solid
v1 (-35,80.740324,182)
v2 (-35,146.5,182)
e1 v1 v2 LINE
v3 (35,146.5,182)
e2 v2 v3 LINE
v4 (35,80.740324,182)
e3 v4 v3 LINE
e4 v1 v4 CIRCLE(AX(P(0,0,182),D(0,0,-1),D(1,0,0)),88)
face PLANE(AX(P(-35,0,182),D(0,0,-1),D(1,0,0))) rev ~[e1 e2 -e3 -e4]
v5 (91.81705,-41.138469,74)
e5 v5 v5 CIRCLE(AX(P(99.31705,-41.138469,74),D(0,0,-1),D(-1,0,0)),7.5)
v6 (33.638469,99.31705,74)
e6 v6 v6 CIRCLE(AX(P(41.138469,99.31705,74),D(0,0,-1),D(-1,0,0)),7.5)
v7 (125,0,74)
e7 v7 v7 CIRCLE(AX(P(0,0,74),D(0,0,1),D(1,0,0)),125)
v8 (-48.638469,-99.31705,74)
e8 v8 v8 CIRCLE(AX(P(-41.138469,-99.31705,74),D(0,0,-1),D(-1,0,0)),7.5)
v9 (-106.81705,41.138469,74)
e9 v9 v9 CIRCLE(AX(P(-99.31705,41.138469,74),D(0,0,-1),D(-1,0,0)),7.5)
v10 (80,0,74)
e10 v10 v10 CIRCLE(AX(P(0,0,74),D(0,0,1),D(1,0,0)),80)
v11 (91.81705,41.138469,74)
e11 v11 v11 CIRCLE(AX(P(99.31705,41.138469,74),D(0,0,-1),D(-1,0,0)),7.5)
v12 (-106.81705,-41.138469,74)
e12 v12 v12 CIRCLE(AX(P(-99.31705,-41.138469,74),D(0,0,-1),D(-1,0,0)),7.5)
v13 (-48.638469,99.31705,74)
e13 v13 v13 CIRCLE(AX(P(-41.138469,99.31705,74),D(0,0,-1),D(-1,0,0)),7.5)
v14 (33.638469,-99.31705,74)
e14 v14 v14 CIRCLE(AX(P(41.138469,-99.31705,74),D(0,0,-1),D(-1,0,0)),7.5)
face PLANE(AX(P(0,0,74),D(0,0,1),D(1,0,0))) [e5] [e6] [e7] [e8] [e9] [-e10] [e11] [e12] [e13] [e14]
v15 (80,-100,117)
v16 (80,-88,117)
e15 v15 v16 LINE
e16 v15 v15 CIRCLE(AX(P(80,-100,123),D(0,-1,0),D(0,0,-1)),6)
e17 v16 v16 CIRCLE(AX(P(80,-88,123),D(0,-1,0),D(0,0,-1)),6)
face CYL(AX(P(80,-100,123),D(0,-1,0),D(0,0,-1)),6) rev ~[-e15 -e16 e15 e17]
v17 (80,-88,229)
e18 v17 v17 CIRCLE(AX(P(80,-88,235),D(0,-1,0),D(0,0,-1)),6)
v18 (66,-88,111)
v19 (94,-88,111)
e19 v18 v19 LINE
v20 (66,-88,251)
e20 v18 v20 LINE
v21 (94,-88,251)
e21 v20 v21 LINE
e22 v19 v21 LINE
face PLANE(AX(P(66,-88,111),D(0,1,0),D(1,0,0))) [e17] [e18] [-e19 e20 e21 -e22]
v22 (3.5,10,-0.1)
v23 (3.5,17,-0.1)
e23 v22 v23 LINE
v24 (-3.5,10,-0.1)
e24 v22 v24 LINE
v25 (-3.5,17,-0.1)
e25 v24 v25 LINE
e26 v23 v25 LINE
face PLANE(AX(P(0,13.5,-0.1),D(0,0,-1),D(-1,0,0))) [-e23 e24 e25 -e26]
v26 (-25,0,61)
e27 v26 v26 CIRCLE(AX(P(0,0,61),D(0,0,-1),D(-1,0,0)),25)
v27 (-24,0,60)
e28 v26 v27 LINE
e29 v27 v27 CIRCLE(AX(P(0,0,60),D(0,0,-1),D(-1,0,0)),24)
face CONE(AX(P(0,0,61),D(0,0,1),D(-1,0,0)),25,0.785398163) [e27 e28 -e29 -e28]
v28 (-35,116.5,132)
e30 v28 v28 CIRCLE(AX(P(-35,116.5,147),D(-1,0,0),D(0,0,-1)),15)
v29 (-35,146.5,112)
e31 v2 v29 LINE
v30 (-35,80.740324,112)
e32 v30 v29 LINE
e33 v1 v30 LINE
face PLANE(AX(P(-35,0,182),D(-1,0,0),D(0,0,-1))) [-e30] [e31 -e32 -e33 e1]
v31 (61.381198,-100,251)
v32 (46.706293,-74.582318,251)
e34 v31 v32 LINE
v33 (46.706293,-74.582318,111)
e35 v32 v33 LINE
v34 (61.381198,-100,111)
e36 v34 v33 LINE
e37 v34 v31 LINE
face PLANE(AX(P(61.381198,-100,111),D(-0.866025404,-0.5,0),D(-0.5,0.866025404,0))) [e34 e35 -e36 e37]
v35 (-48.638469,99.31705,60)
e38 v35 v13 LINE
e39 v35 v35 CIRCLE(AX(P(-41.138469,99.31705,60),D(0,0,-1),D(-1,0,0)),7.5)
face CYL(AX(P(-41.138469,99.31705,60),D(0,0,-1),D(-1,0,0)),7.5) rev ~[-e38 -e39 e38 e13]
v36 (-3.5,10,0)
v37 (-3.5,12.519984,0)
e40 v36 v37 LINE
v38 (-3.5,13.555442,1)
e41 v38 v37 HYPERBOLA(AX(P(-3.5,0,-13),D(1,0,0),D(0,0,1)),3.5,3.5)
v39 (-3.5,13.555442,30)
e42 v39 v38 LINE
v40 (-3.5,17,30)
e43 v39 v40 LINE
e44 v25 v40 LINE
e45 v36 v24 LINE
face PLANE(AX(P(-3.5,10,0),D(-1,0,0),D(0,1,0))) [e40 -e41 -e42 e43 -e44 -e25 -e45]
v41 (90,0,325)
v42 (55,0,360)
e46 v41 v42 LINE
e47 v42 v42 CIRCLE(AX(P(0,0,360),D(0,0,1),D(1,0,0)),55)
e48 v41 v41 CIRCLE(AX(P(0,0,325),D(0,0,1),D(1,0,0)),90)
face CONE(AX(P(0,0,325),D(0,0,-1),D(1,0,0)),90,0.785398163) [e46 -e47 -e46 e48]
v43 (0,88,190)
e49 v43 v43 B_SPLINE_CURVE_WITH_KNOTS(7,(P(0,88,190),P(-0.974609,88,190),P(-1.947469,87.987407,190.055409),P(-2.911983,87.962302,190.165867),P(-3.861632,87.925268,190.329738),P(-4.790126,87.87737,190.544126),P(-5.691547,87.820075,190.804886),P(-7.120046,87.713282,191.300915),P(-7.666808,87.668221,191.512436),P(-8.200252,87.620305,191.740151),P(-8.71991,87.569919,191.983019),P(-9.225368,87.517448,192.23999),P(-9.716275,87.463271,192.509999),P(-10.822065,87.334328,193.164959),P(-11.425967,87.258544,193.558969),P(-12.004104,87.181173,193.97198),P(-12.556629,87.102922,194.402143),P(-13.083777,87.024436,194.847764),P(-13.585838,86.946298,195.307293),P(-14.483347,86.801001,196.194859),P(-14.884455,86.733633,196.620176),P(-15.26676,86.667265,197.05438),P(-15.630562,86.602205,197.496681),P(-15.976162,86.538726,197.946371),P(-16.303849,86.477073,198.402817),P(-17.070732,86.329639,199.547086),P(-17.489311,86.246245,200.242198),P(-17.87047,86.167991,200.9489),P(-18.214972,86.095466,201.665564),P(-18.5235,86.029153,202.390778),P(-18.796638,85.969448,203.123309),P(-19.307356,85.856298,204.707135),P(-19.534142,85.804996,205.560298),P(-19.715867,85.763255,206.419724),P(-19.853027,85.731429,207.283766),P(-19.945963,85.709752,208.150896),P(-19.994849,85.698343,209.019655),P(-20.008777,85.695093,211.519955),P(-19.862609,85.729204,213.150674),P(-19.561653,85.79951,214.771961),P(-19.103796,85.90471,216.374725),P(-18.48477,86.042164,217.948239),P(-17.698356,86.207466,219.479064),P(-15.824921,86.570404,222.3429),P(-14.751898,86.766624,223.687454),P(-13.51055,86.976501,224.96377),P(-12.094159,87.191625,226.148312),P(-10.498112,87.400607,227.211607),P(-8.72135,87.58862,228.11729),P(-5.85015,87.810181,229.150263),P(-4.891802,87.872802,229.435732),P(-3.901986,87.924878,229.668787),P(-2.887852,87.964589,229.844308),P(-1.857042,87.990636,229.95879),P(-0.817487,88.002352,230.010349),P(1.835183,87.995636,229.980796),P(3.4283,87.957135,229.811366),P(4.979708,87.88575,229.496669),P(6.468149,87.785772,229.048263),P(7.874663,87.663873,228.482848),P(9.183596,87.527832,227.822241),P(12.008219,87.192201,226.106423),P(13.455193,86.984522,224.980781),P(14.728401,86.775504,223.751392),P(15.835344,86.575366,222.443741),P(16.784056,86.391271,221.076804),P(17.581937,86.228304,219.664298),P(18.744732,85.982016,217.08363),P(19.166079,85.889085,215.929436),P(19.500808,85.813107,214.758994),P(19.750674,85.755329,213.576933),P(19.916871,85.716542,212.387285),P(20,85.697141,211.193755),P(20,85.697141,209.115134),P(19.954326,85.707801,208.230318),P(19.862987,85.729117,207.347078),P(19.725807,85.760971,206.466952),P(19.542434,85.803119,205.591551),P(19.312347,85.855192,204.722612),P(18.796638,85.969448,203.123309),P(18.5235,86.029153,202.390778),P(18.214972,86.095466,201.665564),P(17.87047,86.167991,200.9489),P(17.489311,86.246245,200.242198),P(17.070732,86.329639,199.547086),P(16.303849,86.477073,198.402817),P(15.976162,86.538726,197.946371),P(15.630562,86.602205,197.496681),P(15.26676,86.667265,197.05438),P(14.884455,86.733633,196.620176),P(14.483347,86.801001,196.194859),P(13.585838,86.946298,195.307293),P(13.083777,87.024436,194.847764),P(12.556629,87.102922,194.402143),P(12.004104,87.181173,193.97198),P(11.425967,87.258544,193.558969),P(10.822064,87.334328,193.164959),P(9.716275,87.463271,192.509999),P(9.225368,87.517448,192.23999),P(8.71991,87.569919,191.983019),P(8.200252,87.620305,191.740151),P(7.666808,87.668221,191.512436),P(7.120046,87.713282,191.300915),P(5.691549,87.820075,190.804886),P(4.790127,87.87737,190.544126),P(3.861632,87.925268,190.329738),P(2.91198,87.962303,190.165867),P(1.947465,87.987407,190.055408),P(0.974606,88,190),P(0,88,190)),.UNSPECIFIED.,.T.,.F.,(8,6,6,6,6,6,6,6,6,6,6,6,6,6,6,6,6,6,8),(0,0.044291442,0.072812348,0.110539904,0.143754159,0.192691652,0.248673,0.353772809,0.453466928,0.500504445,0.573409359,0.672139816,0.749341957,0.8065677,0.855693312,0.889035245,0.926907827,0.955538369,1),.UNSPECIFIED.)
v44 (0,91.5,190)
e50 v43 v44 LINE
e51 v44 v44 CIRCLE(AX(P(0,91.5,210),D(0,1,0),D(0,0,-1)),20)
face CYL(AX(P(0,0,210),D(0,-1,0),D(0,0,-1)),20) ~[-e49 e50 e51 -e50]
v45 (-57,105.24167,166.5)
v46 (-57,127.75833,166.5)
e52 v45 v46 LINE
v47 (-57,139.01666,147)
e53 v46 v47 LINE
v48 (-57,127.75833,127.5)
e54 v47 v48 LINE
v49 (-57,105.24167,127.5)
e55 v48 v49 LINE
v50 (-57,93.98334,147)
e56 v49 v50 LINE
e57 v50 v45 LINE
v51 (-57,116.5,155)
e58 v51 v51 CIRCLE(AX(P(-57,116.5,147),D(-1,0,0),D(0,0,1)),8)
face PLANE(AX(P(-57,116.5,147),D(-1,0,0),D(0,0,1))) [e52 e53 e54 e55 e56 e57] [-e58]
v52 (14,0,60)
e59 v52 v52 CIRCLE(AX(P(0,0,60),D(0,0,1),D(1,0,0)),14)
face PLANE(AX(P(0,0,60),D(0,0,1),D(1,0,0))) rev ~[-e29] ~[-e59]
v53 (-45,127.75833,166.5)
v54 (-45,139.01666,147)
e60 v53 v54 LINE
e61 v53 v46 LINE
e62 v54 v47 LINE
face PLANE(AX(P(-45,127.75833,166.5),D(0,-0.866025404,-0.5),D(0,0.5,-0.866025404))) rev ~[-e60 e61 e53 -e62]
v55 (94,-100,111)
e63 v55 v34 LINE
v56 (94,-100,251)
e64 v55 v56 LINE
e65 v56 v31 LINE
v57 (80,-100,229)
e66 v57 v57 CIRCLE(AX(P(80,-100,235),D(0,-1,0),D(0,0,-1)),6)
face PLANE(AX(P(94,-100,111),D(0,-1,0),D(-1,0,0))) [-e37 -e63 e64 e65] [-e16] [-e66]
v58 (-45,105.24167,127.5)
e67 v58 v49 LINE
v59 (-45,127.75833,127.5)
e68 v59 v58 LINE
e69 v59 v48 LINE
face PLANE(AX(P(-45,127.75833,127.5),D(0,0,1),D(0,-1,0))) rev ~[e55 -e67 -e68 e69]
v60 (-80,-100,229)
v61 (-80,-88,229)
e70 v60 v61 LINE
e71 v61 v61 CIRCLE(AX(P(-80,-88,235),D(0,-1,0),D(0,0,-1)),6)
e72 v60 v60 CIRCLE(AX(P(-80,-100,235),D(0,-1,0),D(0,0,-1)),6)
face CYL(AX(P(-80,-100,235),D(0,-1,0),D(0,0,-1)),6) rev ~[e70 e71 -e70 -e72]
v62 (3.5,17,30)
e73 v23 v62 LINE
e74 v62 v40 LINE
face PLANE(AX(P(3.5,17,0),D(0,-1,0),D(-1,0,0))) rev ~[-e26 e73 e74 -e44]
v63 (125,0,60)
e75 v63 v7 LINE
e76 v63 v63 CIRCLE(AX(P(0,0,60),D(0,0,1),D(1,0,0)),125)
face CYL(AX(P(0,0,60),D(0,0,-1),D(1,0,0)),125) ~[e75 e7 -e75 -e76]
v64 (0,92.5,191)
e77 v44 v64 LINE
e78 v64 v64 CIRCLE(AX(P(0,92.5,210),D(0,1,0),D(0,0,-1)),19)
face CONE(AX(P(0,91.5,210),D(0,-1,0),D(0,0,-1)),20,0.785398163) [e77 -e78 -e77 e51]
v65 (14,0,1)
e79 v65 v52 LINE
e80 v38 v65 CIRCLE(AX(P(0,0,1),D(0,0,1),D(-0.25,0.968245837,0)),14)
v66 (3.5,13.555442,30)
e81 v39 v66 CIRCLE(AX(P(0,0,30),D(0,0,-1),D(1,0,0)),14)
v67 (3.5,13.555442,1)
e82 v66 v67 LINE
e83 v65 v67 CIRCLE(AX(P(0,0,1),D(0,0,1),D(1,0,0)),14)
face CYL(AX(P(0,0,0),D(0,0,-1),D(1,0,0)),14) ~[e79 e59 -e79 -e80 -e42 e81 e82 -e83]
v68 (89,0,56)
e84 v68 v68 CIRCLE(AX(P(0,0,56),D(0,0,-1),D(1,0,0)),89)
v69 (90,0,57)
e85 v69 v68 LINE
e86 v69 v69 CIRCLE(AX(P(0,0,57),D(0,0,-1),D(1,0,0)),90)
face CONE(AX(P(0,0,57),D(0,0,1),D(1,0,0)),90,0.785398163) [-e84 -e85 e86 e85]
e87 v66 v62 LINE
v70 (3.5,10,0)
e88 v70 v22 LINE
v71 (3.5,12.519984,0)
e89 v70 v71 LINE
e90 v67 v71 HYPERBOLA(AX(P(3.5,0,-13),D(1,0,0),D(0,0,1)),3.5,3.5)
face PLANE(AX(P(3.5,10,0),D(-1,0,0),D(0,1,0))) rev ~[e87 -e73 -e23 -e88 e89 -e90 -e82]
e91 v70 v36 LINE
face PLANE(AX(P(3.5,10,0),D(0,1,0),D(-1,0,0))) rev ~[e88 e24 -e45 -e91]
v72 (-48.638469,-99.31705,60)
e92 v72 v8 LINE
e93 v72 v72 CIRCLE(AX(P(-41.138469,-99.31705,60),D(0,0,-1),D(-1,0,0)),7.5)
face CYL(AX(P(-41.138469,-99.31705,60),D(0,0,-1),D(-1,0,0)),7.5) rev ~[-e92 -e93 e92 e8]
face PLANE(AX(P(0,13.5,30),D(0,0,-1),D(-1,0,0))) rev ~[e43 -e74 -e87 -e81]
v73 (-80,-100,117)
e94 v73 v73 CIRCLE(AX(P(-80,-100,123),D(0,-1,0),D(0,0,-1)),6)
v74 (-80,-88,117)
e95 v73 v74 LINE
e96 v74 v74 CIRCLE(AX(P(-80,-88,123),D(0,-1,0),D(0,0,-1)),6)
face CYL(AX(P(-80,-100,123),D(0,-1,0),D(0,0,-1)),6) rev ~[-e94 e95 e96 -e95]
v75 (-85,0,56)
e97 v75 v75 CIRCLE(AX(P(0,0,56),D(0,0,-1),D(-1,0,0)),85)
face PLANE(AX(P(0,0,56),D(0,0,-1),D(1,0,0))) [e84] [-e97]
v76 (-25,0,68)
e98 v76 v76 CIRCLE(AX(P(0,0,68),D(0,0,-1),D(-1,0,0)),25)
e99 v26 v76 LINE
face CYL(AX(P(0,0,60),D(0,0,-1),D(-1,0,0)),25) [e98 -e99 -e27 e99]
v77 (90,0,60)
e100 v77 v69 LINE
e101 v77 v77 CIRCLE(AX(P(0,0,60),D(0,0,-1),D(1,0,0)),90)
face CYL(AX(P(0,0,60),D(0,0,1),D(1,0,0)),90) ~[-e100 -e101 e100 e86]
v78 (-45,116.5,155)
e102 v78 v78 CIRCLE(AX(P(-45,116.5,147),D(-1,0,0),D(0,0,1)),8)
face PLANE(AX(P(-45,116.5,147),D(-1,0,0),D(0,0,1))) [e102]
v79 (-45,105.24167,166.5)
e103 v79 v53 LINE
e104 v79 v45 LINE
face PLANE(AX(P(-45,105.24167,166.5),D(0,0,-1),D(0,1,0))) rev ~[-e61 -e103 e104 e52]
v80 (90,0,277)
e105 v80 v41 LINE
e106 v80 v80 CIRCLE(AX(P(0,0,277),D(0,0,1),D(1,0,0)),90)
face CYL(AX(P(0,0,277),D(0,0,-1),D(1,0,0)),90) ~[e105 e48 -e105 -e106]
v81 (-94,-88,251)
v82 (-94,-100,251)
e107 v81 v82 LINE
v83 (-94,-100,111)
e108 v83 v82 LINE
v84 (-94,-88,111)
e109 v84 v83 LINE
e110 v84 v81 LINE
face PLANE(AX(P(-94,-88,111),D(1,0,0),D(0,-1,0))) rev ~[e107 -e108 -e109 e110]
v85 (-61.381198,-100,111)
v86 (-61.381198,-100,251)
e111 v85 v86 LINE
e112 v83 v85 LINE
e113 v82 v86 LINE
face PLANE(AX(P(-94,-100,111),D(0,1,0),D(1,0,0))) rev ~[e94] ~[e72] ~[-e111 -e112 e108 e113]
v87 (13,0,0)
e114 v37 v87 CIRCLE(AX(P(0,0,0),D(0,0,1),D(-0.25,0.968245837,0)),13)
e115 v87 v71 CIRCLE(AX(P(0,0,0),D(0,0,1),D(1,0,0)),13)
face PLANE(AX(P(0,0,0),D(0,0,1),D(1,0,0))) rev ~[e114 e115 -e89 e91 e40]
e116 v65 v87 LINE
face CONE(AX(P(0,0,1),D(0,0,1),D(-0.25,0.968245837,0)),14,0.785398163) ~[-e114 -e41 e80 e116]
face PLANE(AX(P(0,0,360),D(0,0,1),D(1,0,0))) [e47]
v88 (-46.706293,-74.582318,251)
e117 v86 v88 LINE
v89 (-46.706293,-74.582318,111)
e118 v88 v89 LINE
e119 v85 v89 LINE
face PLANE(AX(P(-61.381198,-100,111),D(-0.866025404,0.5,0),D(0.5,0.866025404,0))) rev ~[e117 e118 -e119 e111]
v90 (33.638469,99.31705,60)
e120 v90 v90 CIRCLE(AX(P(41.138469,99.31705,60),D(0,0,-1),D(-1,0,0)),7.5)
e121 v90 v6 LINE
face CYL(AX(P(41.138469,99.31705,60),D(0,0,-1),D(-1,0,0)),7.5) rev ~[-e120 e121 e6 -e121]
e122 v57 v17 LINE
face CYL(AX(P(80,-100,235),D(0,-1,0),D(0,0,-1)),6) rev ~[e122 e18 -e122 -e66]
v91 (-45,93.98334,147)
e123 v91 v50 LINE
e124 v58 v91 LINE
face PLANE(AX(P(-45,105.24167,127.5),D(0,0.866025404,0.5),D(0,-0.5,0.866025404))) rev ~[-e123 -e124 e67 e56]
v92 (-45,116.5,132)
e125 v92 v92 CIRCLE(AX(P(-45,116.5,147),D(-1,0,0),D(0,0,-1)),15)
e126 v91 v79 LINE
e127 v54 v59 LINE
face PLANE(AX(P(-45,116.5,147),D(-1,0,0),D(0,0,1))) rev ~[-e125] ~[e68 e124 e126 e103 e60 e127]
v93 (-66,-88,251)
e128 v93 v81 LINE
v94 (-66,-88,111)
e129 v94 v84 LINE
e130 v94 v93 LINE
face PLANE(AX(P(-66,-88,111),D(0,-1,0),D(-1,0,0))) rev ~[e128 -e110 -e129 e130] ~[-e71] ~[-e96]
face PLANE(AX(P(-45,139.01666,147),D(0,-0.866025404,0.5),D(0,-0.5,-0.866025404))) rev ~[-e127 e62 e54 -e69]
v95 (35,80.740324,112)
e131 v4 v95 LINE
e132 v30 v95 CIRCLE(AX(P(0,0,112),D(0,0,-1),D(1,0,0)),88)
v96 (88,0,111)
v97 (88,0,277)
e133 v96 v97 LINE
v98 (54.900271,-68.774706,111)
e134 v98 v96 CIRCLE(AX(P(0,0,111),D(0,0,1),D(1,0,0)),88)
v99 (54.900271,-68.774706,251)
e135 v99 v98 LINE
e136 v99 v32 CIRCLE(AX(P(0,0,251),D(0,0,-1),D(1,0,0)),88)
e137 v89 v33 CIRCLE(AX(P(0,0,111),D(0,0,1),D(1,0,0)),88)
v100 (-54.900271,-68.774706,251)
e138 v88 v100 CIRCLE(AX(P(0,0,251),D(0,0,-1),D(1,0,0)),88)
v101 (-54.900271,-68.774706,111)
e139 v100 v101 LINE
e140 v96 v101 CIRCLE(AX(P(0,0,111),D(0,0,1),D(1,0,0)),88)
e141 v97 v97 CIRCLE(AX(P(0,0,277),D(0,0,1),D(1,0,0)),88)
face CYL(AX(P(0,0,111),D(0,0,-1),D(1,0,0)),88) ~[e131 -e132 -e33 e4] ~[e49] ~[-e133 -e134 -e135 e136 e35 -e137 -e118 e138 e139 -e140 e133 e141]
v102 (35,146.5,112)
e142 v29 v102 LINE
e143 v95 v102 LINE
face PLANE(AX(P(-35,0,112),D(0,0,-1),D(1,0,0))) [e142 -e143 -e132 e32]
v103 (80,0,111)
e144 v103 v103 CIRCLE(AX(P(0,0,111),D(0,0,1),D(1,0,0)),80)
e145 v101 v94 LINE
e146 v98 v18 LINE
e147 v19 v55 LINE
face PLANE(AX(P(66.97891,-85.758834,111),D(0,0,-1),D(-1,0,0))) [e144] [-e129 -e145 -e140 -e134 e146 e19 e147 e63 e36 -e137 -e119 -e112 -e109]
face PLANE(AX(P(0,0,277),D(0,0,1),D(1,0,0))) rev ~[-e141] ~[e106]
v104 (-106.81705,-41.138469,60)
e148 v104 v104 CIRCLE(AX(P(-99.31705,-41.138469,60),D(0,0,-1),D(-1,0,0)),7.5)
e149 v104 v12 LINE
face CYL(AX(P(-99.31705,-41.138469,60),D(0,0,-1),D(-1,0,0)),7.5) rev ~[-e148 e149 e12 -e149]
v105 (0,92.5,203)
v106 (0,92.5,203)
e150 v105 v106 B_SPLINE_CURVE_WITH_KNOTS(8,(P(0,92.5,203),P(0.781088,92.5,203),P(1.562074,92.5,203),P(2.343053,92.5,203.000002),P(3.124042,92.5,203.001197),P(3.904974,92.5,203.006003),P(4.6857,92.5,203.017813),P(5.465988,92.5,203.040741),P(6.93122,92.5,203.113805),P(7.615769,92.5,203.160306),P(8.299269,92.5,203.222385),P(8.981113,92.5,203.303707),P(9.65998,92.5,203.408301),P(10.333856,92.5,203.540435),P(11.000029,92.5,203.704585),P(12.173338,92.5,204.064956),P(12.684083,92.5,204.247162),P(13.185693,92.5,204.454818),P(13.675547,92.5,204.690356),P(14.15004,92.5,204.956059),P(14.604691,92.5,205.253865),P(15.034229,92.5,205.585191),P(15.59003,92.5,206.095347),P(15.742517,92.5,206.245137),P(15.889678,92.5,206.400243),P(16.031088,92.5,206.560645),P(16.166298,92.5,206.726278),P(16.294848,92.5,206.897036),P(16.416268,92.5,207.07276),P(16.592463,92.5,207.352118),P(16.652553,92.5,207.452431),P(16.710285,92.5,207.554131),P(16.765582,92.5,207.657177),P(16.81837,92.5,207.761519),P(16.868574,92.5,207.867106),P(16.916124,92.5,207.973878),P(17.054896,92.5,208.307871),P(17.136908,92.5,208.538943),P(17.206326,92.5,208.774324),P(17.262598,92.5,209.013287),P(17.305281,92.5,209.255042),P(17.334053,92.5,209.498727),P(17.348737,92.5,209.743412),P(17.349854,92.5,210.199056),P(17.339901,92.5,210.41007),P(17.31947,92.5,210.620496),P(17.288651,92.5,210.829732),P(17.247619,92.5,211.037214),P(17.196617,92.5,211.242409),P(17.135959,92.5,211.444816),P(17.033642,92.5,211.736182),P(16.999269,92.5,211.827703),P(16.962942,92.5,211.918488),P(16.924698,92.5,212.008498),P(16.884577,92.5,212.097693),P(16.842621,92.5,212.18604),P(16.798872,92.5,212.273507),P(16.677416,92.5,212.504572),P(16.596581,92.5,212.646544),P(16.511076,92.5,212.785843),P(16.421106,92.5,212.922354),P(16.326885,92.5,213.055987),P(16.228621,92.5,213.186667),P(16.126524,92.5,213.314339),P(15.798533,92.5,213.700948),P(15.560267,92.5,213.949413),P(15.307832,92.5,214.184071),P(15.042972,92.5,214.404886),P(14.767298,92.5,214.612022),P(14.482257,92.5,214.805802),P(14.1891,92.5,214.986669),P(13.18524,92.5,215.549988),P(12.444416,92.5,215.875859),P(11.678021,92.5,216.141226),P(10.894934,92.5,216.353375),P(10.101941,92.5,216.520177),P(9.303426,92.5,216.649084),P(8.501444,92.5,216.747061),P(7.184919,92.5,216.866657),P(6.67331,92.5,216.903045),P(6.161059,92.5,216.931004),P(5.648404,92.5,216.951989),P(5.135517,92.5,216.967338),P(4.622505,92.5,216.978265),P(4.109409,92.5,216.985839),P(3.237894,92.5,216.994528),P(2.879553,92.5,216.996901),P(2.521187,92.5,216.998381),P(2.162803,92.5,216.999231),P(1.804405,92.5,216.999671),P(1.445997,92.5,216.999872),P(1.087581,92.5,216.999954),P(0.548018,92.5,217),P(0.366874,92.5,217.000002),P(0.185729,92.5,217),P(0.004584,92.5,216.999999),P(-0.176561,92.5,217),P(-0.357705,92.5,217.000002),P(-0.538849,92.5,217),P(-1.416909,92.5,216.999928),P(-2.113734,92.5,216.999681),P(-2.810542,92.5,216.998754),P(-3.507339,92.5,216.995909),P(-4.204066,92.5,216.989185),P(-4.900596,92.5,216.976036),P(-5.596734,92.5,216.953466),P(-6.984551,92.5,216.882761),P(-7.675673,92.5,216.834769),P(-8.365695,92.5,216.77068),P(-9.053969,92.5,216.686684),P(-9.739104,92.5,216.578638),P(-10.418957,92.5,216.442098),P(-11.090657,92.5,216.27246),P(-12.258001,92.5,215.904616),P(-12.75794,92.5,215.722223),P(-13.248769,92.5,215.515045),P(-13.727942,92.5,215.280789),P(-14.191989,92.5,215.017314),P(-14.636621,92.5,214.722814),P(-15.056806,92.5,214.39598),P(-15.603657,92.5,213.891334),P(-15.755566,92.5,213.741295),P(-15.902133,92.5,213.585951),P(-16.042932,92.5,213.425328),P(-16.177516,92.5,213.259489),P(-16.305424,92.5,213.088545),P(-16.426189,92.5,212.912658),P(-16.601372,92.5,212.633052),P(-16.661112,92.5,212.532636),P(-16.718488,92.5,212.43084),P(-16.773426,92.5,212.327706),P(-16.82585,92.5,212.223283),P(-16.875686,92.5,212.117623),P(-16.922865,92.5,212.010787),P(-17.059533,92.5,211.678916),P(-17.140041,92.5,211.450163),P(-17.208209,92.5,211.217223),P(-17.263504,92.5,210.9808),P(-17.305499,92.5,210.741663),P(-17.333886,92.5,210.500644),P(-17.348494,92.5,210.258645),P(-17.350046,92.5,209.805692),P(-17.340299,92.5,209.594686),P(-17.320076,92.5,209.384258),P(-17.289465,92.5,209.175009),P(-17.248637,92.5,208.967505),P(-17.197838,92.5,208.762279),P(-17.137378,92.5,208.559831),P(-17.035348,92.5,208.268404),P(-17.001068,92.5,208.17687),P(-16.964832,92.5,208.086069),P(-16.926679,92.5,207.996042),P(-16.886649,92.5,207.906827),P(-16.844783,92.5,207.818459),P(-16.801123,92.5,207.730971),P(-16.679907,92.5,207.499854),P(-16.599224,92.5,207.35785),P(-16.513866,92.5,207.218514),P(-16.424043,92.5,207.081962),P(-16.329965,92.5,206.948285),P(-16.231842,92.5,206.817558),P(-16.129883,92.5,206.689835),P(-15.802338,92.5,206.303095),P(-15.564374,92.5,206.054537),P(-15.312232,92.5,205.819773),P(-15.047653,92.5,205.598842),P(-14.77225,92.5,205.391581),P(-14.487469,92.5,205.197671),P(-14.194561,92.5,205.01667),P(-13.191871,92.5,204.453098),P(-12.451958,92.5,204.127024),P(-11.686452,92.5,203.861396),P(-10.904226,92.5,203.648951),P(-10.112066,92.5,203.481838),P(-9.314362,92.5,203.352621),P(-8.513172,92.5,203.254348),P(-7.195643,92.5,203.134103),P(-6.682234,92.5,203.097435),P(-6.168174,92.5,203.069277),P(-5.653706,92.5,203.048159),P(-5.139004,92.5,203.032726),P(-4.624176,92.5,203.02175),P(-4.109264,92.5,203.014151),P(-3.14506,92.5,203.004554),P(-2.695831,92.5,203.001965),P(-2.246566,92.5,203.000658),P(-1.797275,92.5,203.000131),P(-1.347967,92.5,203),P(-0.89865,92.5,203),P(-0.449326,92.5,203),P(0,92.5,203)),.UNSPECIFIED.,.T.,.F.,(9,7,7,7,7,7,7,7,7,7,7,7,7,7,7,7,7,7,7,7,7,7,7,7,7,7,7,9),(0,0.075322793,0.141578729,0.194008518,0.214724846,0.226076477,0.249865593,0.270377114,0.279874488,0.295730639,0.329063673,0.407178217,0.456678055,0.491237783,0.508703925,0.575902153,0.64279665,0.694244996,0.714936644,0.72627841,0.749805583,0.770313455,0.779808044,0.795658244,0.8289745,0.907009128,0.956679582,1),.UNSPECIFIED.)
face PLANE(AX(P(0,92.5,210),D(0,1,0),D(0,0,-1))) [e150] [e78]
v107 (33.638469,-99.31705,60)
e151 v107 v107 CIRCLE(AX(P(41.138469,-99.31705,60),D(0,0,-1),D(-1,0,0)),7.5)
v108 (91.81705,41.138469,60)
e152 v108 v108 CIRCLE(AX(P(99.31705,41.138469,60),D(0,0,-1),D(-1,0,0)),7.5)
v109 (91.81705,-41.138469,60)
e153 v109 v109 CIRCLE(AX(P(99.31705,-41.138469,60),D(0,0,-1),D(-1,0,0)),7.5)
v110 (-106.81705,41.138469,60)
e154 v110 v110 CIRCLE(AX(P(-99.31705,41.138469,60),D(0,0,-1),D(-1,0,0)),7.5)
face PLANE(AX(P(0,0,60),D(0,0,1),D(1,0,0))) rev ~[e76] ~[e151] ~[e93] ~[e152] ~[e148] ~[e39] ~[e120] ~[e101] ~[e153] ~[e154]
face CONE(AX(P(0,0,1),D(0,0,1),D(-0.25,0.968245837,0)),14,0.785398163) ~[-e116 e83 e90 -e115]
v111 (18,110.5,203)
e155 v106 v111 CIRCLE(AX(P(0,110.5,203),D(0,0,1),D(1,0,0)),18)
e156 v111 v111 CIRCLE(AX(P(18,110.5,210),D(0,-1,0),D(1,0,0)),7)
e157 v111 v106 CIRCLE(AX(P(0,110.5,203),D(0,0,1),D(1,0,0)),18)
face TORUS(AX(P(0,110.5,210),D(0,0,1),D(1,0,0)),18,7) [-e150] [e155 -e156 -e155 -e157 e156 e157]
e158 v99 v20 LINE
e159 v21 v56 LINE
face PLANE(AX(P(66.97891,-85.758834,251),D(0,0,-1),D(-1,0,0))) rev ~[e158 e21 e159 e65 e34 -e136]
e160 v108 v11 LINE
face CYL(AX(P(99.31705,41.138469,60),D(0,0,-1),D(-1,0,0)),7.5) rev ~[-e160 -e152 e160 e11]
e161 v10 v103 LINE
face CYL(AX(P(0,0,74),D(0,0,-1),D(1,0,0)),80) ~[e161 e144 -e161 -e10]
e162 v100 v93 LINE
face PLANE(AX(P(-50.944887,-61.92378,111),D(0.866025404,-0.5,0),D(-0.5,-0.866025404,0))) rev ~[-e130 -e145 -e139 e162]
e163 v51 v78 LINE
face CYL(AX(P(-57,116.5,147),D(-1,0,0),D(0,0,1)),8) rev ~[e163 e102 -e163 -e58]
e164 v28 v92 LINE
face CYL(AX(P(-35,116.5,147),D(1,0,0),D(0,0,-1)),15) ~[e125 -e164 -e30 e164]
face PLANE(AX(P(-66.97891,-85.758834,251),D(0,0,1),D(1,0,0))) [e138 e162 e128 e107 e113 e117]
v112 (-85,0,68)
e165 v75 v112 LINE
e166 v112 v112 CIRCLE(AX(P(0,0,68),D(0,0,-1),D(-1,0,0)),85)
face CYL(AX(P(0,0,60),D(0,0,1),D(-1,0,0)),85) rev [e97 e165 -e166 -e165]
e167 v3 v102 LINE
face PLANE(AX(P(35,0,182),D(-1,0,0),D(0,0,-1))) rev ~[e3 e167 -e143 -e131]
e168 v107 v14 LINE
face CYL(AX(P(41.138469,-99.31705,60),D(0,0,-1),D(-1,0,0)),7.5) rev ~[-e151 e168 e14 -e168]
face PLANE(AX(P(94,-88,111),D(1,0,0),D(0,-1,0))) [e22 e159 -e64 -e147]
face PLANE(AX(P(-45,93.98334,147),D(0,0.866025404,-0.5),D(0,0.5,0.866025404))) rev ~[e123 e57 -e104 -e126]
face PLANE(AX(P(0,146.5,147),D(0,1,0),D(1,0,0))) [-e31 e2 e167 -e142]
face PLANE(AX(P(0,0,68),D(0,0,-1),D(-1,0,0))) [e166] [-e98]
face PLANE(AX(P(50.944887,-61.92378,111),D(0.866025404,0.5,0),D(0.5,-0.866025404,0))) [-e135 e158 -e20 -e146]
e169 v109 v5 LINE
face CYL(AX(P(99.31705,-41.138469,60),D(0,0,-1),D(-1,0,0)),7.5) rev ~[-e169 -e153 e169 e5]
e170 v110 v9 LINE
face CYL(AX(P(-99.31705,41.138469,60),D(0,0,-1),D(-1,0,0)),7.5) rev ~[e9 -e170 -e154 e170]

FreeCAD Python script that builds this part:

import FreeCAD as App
import Part
import Sketcher
Q = App.Units.Quantity


def edges_at(feature, points):
    """Names of the edges that pass closest to the given points."""
    edges = feature.Shape.Edges
    near = lambda p: min(range(len(edges)), key=lambda i: edges[i].distToShape(Part.Vertex(*p))[0])
    return sorted({f"Edge{near(p) + 1}" for p in points})

doc = App.newDocument("Part")
body = doc.addObject("PartDesign::Body", "Body")

# Sketch on XY plane
sketch1 = body.newObject("Sketcher::SketchObject", "Sketch")
sketch1.AttachmentSupport = (doc.getObject("XY_Plane"), [""])
sketch1.MapMode = "FlatFace"
sketch1.addGeometry(Part.Circle(App.Vector(0, 0, 0), App.Vector(0, 0, 1), 14), False)
sketch1.addConstraint(Sketcher.Constraint("Coincident", 0, 3, -1, 1))
sketch1.addConstraint(Sketcher.Constraint("Diameter", 0, Q("28 mm")))
pad1 = body.newObject("PartDesign::Pad", "Pad")
pad1.Profile = sketch1
pad1.Length = 60

# Sketch on XY plane
sketch2 = body.newObject("Sketcher::SketchObject", "Sketch001")
sketch2.AttachmentSupport = (doc.getObject("XY_Plane"), [""])
sketch2.MapMode = "FlatFace"
sketch2.addGeometry(Part.LineSegment(App.Vector(4, 17, 0), App.Vector(4, 10, 0)), False)
sketch2.addGeometry(Part.LineSegment(App.Vector(4, 10, 0), App.Vector(-4, 10, 0)), False)
sketch2.addGeometry(Part.LineSegment(App.Vector(-4, 10, 0), App.Vector(-4, 17, 0)), False)
sketch2.addGeometry(Part.LineSegment(App.Vector(-4, 17, 0), App.Vector(4, 17, 0)), False)
sketch2.addConstraint(Sketcher.Constraint("Coincident", 0, 2, 1, 1))
sketch2.addConstraint(Sketcher.Constraint("Coincident", 1, 2, 2, 1))
sketch2.addConstraint(Sketcher.Constraint("Coincident", 2, 2, 3, 1))
sketch2.addConstraint(Sketcher.Constraint("Coincident", 3, 2, 0, 1))
sketch2.addConstraint(Sketcher.Constraint("Vertical", 0))
sketch2.addConstraint(Sketcher.Constraint("Horizontal", 1))
sketch2.addConstraint(Sketcher.Constraint("Vertical", 2))
sketch2.addConstraint(Sketcher.Constraint("Horizontal", 3))
sketch2.addConstraint(Sketcher.Constraint("Equal", 3, 0))
sketch2.addConstraint(Sketcher.Constraint("DistanceX", 1, 2, 1, 1, Q("7 mm")))
sketch2.addConstraint(Sketcher.Constraint("DistanceY", -1, 1, 0, 2, Q("10 mm")))
sketch2.addConstraint(Sketcher.Constraint("DistanceX", -1, 1, 0, 2, Q("3.5 mm")))
pad2 = body.newObject("PartDesign::Pad", "Pad001")
pad2.Profile = sketch2
pad2.Type = "TwoLengths"
pad2.Length = 0.1
pad2.Length2 = 30
pad2.Reversed = True

# Sketch on XY plane
sketch3 = body.newObject("Sketcher::SketchObject", "Sketch002")
sketch3.AttachmentSupport = (doc.getObject("XY_Plane"), [""])
sketch3.MapMode = "FlatFace"
sketch3.AttachmentOffset = App.Placement(App.Vector(0, 0, 60), App.Rotation())
sketch3.addGeometry(Part.Circle(App.Vector(0, 0, 0), App.Vector(0, 0, 1), 125), False)
sketch3.addConstraint(Sketcher.Constraint("Coincident", 0, 3, -1, 1))
sketch3.addConstraint(Sketcher.Constraint("Diameter", 0, Q("250 mm")))
pad3 = body.newObject("PartDesign::Pad", "Pad002")
pad3.Profile = sketch3
pad3.Length = 14

# Sketch on XY plane
sketch4 = body.newObject("Sketcher::SketchObject", "Sketch003")
sketch4.AttachmentSupport = (doc.getObject("XY_Plane"), [""])
sketch4.MapMode = "FlatFace"
sketch4.AttachmentOffset = App.Placement(App.Vector(0, 0, 60), App.Rotation())
sketch4.addGeometry(Part.Circle(App.Vector(0, 0, 0), App.Vector(0, 0, 1), 90), False)
sketch4.addGeometry(Part.Circle(App.Vector(0, 0, 0), App.Vector(0, 0, 1), 85), False)
sketch4.addConstraint(Sketcher.Constraint("Coincident", 0, 3, -1, 1))
sketch4.addConstraint(Sketcher.Constraint("Coincident", 1, 3, -1, 1))
sketch4.addConstraint(Sketcher.Constraint("Diameter", 0, Q("180 mm")))
sketch4.addConstraint(Sketcher.Constraint("Diameter", 1, Q("170 mm")))
pad4 = body.newObject("PartDesign::Pad", "Pad003")
pad4.Profile = sketch4
pad4.Length = 4
pad4.Reversed = True

# Sketch on XY plane
sketch5 = body.newObject("Sketcher::SketchObject", "Sketch004")
sketch5.AttachmentSupport = (doc.getObject("XY_Plane"), [""])
sketch5.MapMode = "FlatFace"
sketch5.AttachmentOffset = App.Placement(App.Vector(0, 0, 60), App.Rotation())
sketch5.addGeometry(Part.Circle(App.Vector(0, 0, 0), App.Vector(0, 0, 1), 85), False)
sketch5.addGeometry(Part.Circle(App.Vector(0, 0, 0), App.Vector(0, 0, 1), 25), False)
sketch5.addConstraint(Sketcher.Constraint("Coincident", 0, 3, -1, 1))
sketch5.addConstraint(Sketcher.Constraint("Coincident", 1, 3, -1, 1))
sketch5.addConstraint(Sketcher.Constraint("Diameter", 0, Q("170 mm")))
sketch5.addConstraint(Sketcher.Constraint("Diameter", 1, Q("50 mm")))
pocket1 = body.newObject("PartDesign::Pocket", "Pocket")
pocket1.Profile = sketch5
pocket1.Length = 8
pocket1.Reversed = True
doc.recompute()

chamfer = body.newObject("PartDesign::Chamfer", "Chamfer")
chamfer.Base = (pocket1, edges_at(pocket1, [(-90, 0, 56), (25, 0, 60), (-8.573, -11.068, 0)]))
chamfer.Size = 1

# Sketch on XY plane
sketch6 = body.newObject("Sketcher::SketchObject", "Sketch005")
sketch6.AttachmentSupport = (doc.getObject("XY_Plane"), [""])
sketch6.MapMode = "FlatFace"
sketch6.AttachmentOffset = App.Placement(App.Vector(0, 0, 60), App.Rotation())
sketch6.addGeometry(Part.Circle(App.Vector(41, 99, 0), App.Vector(0, 0, 1), 8), False)
sketch6.addGeometry(Part.Circle(App.Vector(-41, 99, 0), App.Vector(0, 0, 1), 8), False)
sketch6.addGeometry(Part.Circle(App.Vector(-99, 41, 0), App.Vector(0, 0, 1), 8), False)
sketch6.addGeometry(Part.Circle(App.Vector(-99, -41, 0), App.Vector(0, 0, 1), 8), False)
sketch6.addGeometry(Part.Circle(App.Vector(-41, -99, 0), App.Vector(0, 0, 1), 8), False)
sketch6.addGeometry(Part.Circle(App.Vector(41, -99, 0), App.Vector(0, 0, 1), 8), False)
sketch6.addGeometry(Part.Circle(App.Vector(99, -41, 0), App.Vector(0, 0, 1), 8), False)
sketch6.addGeometry(Part.Circle(App.Vector(99, 41, 0), App.Vector(0, 0, 1), 8), False)
sketch6.addConstraint(Sketcher.Constraint("Equal", 0, 1))
sketch6.addConstraint(Sketcher.Constraint("Equal", 1, 2))
sketch6.addConstraint(Sketcher.Constraint("Equal", 2, 3))
sketch6.addConstraint(Sketcher.Constraint("Equal", 3, 4))
sketch6.addConstraint(Sketcher.Constraint("Equal", 4, 5))
sketch6.addConstraint(Sketcher.Constraint("Equal", 5, 6))
sketch6.addConstraint(Sketcher.Constraint("Equal", 6, 7))
sketch6.addConstraint(Sketcher.Constraint("Symmetric", 0, 3, 4, 3, -1, 1))
sketch6.addConstraint(Sketcher.Constraint("Symmetric", 1, 3, 5, 3, -1, 1))
sketch6.addConstraint(Sketcher.Constraint("Symmetric", 2, 3, 6, 3, -1, 1))
sketch6.addConstraint(Sketcher.Constraint("Symmetric", 3, 3, 7, 3, -1, 1))
sketch6.addConstraint(Sketcher.Constraint("Symmetric", 0, 3, 1, 3, -2))
sketch6.addConstraint(Sketcher.Constraint("Symmetric", 3, 3, 6, 3, -2))
sketch6.addConstraint(Sketcher.Constraint("Diameter", 0, Q("15 mm")))
sketch6.addConstraint(Sketcher.Constraint("DistanceY", 4, 3, 1, 3, Q("198.634099 mm")))
sketch6.addConstraint(Sketcher.Constraint("DistanceX", 3, 3, 6, 3, Q("198.634099 mm")))
sketch6.addConstraint(Sketcher.Constraint("DistanceX", -1, 1, 0, 3, Q("41.138469 mm")))
sketch6.addConstraint(Sketcher.Constraint("DistanceY", -1, 1, 2, 3, Q("41.138469 mm")))
pocket2 = body.newObject("PartDesign::Pocket", "Pocket001")
pocket2.Profile = sketch6
pocket2.Type = "ThroughAll"
pocket2.Reversed = True

# Sketch on XY plane
sketch7 = body.newObject("Sketcher::SketchObject", "Sketch006")
sketch7.AttachmentSupport = (doc.getObject("XY_Plane"), [""])
sketch7.MapMode = "FlatFace"
sketch7.AttachmentOffset = App.Placement(App.Vector(0, 0, 74), App.Rotation())
sketch7.addGeometry(Part.Circle(App.Vector(0, 0, 0), App.Vector(0, 0, 1), 80), False)
sketch7.addConstraint(Sketcher.Constraint("Coincident", 0, 3, -1, 1))
sketch7.addConstraint(Sketcher.Constraint("Diameter", 0, Q("160 mm")))
pad5 = body.newObject("PartDesign::Pad", "Pad004")
pad5.Profile = sketch7
pad5.Length = 37

# Sketch on XY plane
sketch8 = body.newObject("Sketcher::SketchObject", "Sketch007")
sketch8.AttachmentSupport = (doc.getObject("XY_Plane"), [""])
sketch8.MapMode = "FlatFace"
sketch8.AttachmentOffset = App.Placement(App.Vector(0, 0, 111), App.Rotation())
sketch8.addGeometry(Part.Circle(App.Vector(0, 0, 0), App.Vector(0, 0, 1), 88), False)
sketch8.addConstraint(Sketcher.Constraint("Coincident", 0, 3, -1, 1))
sketch8.addConstraint(Sketcher.Constraint("Diameter", 0, Q("176 mm")))
pad6 = body.newObject("PartDesign::Pad", "Pad005")
pad6.Profile = sketch8
pad6.Length = 166

# Sketch on XY plane
sketch9 = body.newObject("Sketcher::SketchObject", "Sketch008")
sketch9.AttachmentSupport = (doc.getObject("XY_Plane"), [""])
sketch9.MapMode = "FlatFace"
sketch9.AttachmentOffset = App.Placement(App.Vector(0, 0, 277), App.Rotation())
sketch9.addGeometry(Part.Circle(App.Vector(0, 0, 0), App.Vector(0, 0, 1), 90), False)
sketch9.addConstraint(Sketcher.Constraint("Coincident", 0, 3, -1, 1))
sketch9.addConstraint(Sketcher.Constraint("Diameter", 0, Q("180 mm")))
pad7 = body.newObject("PartDesign::Pad", "Pad006")
pad7.Profile = sketch9
pad7.Length = 83
doc.recompute()

chamfer2 = body.newObject("PartDesign::Chamfer", "Chamfer001")
chamfer2.Base = (pad7, edges_at(pad7, [(-90, 0, 360)]))
chamfer2.Size = 35

# Sketch on XY plane
sketch10 = body.newObject("Sketcher::SketchObject", "Sketch009")
sketch10.AttachmentSupport = (doc.getObject("XY_Plane"), [""])
sketch10.MapMode = "FlatFace"
sketch10.AttachmentOffset = App.Placement(App.Vector(0, 0, 111), App.Rotation())
sketch10.addGeometry(Part.LineSegment(App.Vector(94, -100, 0), App.Vector(61, -100, 0)), False)
sketch10.addGeometry(Part.LineSegment(App.Vector(61, -100, 0), App.Vector(42, -67, 0)), False)
sketch10.addGeometry(Part.LineSegment(App.Vector(42, -67, 0), App.Vector(51, -62, 0)), False)
sketch10.addGeometry(Part.LineSegment(App.Vector(51, -62, 0), App.Vector(66, -88, 0)), False)
sketch10.addGeometry(Part.LineSegment(App.Vector(66, -88, 0), App.Vector(94, -88, 0)), False)
sketch10.addGeometry(Part.LineSegment(App.Vector(94, -88, 0), App.Vector(94, -100, 0)), False)
sketch10.addGeometry(Part.LineSegment(App.Vector(-42, -67, 0), App.Vector(-61, -100, 0)), False)
sketch10.addGeometry(Part.LineSegment(App.Vector(-61, -100, 0), App.Vector(-94, -100, 0)), False)
sketch10.addGeometry(Part.LineSegment(App.Vector(-94, -100, 0), App.Vector(-94, -88, 0)), False)
sketch10.addGeometry(Part.LineSegment(App.Vector(-94, -88, 0), App.Vector(-66, -88, 0)), False)
sketch10.addGeometry(Part.LineSegment(App.Vector(-66, -88, 0), App.Vector(-51, -62, 0)), False)
sketch10.addGeometry(Part.LineSegment(App.Vector(-51, -62, 0), App.Vector(-42, -67, 0)), False)
sketch10.addConstraint(Sketcher.Constraint("Coincident", 0, 2, 1, 1))
sketch10.addConstraint(Sketcher.Constraint("Coincident", 1, 2, 2, 1))
sketch10.addConstraint(Sketcher.Constraint("Coincident", 2, 2, 3, 1))
sketch10.addConstraint(Sketcher.Constraint("Coincident", 3, 2, 4, 1))
sketch10.addConstraint(Sketcher.Constraint("Coincident", 4, 2, 5, 1))
sketch10.addConstraint(Sketcher.Constraint("Coincident", 5, 2, 0, 1))
sketch10.addConstraint(Sketcher.Constraint("Coincident", 6, 2, 7, 1))
sketch10.addConstraint(Sketcher.Constraint("Coincident", 7, 2, 8, 1))
sketch10.addConstraint(Sketcher.Constraint("Coincident", 8, 2, 9, 1))
sketch10.addConstraint(Sketcher.Constraint("Coincident", 9, 2, 10, 1))
sketch10.addConstraint(Sketcher.Constraint("Coincident", 10, 2, 11, 1))
sketch10.addConstraint(Sketcher.Constraint("Coincident", 11, 2, 6, 1))
sketch10.addConstraint(Sketcher.Constraint("Horizontal", 0))
sketch10.addConstraint(Sketcher.Constraint("Horizontal", 4))
sketch10.addConstraint(Sketcher.Constraint("Vertical", 5))
sketch10.addConstraint(Sketcher.Constraint("Horizontal", 7))
sketch10.addConstraint(Sketcher.Constraint("Vertical", 8))
sketch10.addConstraint(Sketcher.Constraint("Horizontal", 9))
sketch10.addConstraint(Sketcher.Constraint("Symmetric", 0, 2, 6, 2, -2))
sketch10.addConstraint(Sketcher.Constraint("Symmetric", 4, 2, 8, 2, -2))
sketch10.addConstraint(Sketcher.Constraint("Symmetric", 2, 2, 10, 2, -2))
sketch10.addConstraint(Sketcher.Constraint("Symmetric", 1, 2, 11, 2, -2))
sketch10.addConstraint(Sketcher.Constraint("Perpendicular", 1, 2))
sketch10.addConstraint(Sketcher.Constraint("Perpendicular", 2, 3))
sketch10.addConstraint(Sketcher.Constraint("Parallel", 6, 10))
sketch10.addConstraint(Sketcher.Constraint("DistanceX", 4, 1, 4, 2, Q("28 mm")))
sketch10.addConstraint(Sketcher.Constraint("DistanceY", 5, 2, 5, 1, Q("12 mm")))
sketch10.addConstraint(Sketcher.Constraint("Angle", 1, Q("120 deg")))
sketch10.addConstraint(Sketcher.Constraint("Distance", 2, Q("10 mm")))
sketch10.addConstraint(Sketcher.Constraint("DistanceY", 0, 2, -1, 1, Q("100 mm")))
sketch10.addConstraint(Sketcher.Constraint("DistanceX", -1, 1, 3, 2, Q("66 mm")))
sketch10.addConstraint(Sketcher.Constraint("Distance", 1, Q("38.193129 mm")))
pad8 = body.newObject("PartDesign::Pad", "Pad007")
pad8.Profile = sketch10
pad8.Length = 140

# Sketch on XZ plane
sketch11 = body.newObject("Sketcher::SketchObject", "Sketch010")
sketch11.AttachmentSupport = (doc.getObject("XZ_Plane"), [""])
sketch11.MapMode = "FlatFace"
sketch11.AttachmentOffset = App.Placement(App.Vector(0, 0, 100), App.Rotation())
sketch11.addGeometry(Part.Circle(App.Vector(-80, 123, 0), App.Vector(0, 0, 1), 6), False)
sketch11.addConstraint(Sketcher.Constraint("Diameter", 0, Q("12 mm")))
sketch11.addConstraint(Sketcher.Constraint("DistanceX", 0, 3, -1, 1, Q("80 mm")))
sketch11.addConstraint(Sketcher.Constraint("DistanceY", -1, 1, 0, 3, Q("123 mm")))
pocket3 = body.newObject("PartDesign::Pocket", "Pocket002")
pocket3.Profile = sketch11
pocket3.Type = "UpToFirst"

# Sketch on XZ plane
sketch12 = body.newObject("Sketcher::SketchObject", "Sketch011")
sketch12.AttachmentSupport = (doc.getObject("XZ_Plane"), [""])
sketch12.MapMode = "FlatFace"
sketch12.AttachmentOffset = App.Placement(App.Vector(0, 0, 100), App.Rotation())
sketch12.addGeometry(Part.Circle(App.Vector(80, 123, 0), App.Vector(0, 0, 1), 6), False)
sketch12.addConstraint(Sketcher.Constraint("Diameter", 0, Q("12 mm")))
sketch12.addConstraint(Sketcher.Constraint("DistanceX", -1, 1, 0, 3, Q("80 mm")))
sketch12.addConstraint(Sketcher.Constraint("DistanceY", -1, 1, 0, 3, Q("123 mm")))
pocket4 = body.newObject("PartDesign::Pocket", "Pocket003")
pocket4.Profile = sketch12
pocket4.Type = "UpToFirst"

# Sketch on XZ plane
sketch13 = body.newObject("Sketcher::SketchObject", "Sketch012")
sketch13.AttachmentSupport = (doc.getObject("XZ_Plane"), [""])
sketch13.MapMode = "FlatFace"
sketch13.AttachmentOffset = App.Placement(App.Vector(0, 0, 100), App.Rotation())
sketch13.addGeometry(Part.Circle(App.Vector(-80, 235, 0), App.Vector(0, 0, 1), 6), False)
sketch13.addConstraint(Sketcher.Constraint("Diameter", 0, Q("12 mm")))
sketch13.addConstraint(Sketcher.Constraint("DistanceX", 0, 3, -1, 1, Q("80 mm")))
sketch13.addConstraint(Sketcher.Constraint("DistanceY", -1, 1, 0, 3, Q("235 mm")))
pocket5 = body.newObject("PartDesign::Pocket", "Pocket004")
pocket5.Profile = sketch13
pocket5.Type = "UpToFirst"

# Sketch on XZ plane
sketch14 = body.newObject("Sketcher::SketchObject", "Sketch013")
sketch14.AttachmentSupport = (doc.getObject("XZ_Plane"), [""])
sketch14.MapMode = "FlatFace"
sketch14.AttachmentOffset = App.Placement(App.Vector(0, 0, 100), App.Rotation())
sketch14.addGeometry(Part.Circle(App.Vector(80, 235, 0), App.Vector(0, 0, 1), 6), False)
sketch14.addConstraint(Sketcher.Constraint("Diameter", 0, Q("12 mm")))
sketch14.addConstraint(Sketcher.Constraint("DistanceX", -1, 1, 0, 3, Q("80 mm")))
sketch14.addConstraint(Sketcher.Constraint("DistanceY", -1, 1, 0, 3, Q("235 mm")))
pocket6 = body.newObject("PartDesign::Pocket", "Pocket005")
pocket6.Profile = sketch14
pocket6.Type = "UpToFirst"

# Sketch on XZ plane
sketch15 = body.newObject("Sketcher::SketchObject", "Sketch014")
sketch15.AttachmentSupport = (doc.getObject("XZ_Plane"), [""])
sketch15.MapMode = "FlatFace"
sketch15.addGeometry(Part.LineSegment(App.Vector(-35, 112, 0), App.Vector(-35, 182, 0)), False)
sketch15.addGeometry(Part.LineSegment(App.Vector(-35, 182, 0), App.Vector(35, 182, 0)), False)
sketch15.addGeometry(Part.LineSegment(App.Vector(35, 182, 0), App.Vector(35, 112, 0)), False)
sketch15.addGeometry(Part.LineSegment(App.Vector(35, 112, 0), App.Vector(-35, 112, 0)), False)
sketch15.addConstraint(Sketcher.Constraint("Coincident", 0, 2, 1, 1))
sketch15.addConstraint(Sketcher.Constraint("Coincident", 1, 2, 2, 1))
sketch15.addConstraint(Sketcher.Constraint("Coincident", 2, 2, 3, 1))
sketch15.addConstraint(Sketcher.Constraint("Coincident", 3, 2, 0, 1))
sketch15.addConstraint(Sketcher.Constraint("Vertical", 0))
sketch15.addConstraint(Sketcher.Constraint("Horizontal", 1))
sketch15.addConstraint(Sketcher.Constraint("Vertical", 2))
sketch15.addConstraint(Sketcher.Constraint("Horizontal", 3))
sketch15.addConstraint(Sketcher.Constraint("Equal", 3, 0))
sketch15.addConstraint(Sketcher.Constraint("DistanceX", 1, 1, 1, 2, Q("70 mm")))
sketch15.addConstraint(Sketcher.Constraint("DistanceX", 0, 2, -1, 1, Q("35 mm")))
sketch15.addConstraint(Sketcher.Constraint("DistanceY", -1, 1, 0, 2, Q("182 mm")))
pad9 = body.newObject("PartDesign::Pad", "Pad008")
pad9.Profile = sketch15
pad9.Length = 146.5
pad9.Reversed = True

# Sketch on XZ plane
sketch16 = body.newObject("Sketcher::SketchObject", "Sketch015")
sketch16.AttachmentSupport = (doc.getObject("XZ_Plane"), [""])
sketch16.MapMode = "FlatFace"
sketch16.addGeometry(Part.Circle(App.Vector(0, 210, 0), App.Vector(0, 0, 1), 20), False)
sketch16.addConstraint(Sketcher.Constraint("PointOnObject", 0, 3, -2))
sketch16.addConstraint(Sketcher.Constraint("Diameter", 0, Q("40 mm")))
sketch16.addConstraint(Sketcher.Constraint("DistanceY", -1, 1, 0, 3, Q("210 mm")))
pad10 = body.newObject("PartDesign::Pad", "Pad009")
pad10.Profile = sketch16
pad10.Length = 92.5
pad10.Reversed = True
doc.recompute()

chamfer3 = body.newObject("PartDesign::Chamfer", "Chamfer002")
chamfer3.Base = (pad10, edges_at(pad10, [(0, 92.5, 230)]))
chamfer3.Size = 1

# Sketch on YZ plane
sketch17 = body.newObject("Sketcher::SketchObject", "Sketch016")
sketch17.AttachmentSupport = (doc.getObject("YZ_Plane"), [""])
sketch17.MapMode = "FlatFace"
sketch17.addGeometry(Part.Circle(App.Vector(128, 210, 0), App.Vector(0, 0, 1), 7), False)
sketch17.addConstraint(Sketcher.Constraint("Diameter", 0, Q("14 mm")))
sketch17.addConstraint(Sketcher.Constraint("DistanceY", -1, 1, 0, 3, Q("210 mm")))
sketch17.addConstraint(Sketcher.Constraint("DistanceX", -1, 1, 0, 3, Q("128.5 mm")))

# Sketch on XY plane
sketch18 = body.newObject("Sketcher::SketchObject", "Sketch017")
sketch18.AttachmentSupport = (doc.getObject("XY_Plane"), [""])
sketch18.MapMode = "FlatFace"
sketch18.AttachmentOffset = App.Placement(App.Vector(0, 0, 210), App.Rotation())
sketch18.addGeometry(Part.Circle(App.Vector(0, 110, 0), App.Vector(0, 0, 1), 18), False)
sketch18.addConstraint(Sketcher.Constraint("PointOnObject", 0, 3, -2))
sketch18.addConstraint(Sketcher.Constraint("Diameter", 0, Q("36 mm")))
sketch18.addConstraint(Sketcher.Constraint("DistanceY", -1, 1, 0, 3, Q("110.5 mm")))
doc.recompute()

additivepipe = body.newObject("PartDesign::AdditivePipe", "AdditivePipe")
additivepipe.Profile = sketch17
additivepipe.Spine = (sketch18, ["Edge1"])

# Sketch on YZ plane
sketch19 = body.newObject("Sketcher::SketchObject", "Sketch018")
sketch19.AttachmentSupport = (doc.getObject("YZ_Plane"), [""])
sketch19.MapMode = "FlatFace"
sketch19.AttachmentOffset = App.Placement(App.Vector(0, 0, -35), App.Rotation())
sketch19.addGeometry(Part.Circle(App.Vector(116, 147, 0), App.Vector(0, 0, 1), 15), False)
sketch19.addConstraint(Sketcher.Constraint("Diameter", 0, Q("30 mm")))
sketch19.addConstraint(Sketcher.Constraint("DistanceY", -1, 1, 0, 3, Q("147 mm")))
sketch19.addConstraint(Sketcher.Constraint("DistanceX", -1, 1, 0, 3, Q("116.5 mm")))
pad11 = body.newObject("PartDesign::Pad", "Pad010")
pad11.Profile = sketch19
pad11.Length = 10
pad11.Reversed = True

# Sketch on YZ plane
sketch20 = body.newObject("Sketcher::SketchObject", "Sketch019")
sketch20.AttachmentSupport = (doc.getObject("YZ_Plane"), [""])
sketch20.MapMode = "FlatFace"
sketch20.AttachmentOffset = App.Placement(App.Vector(0, 0, -45), App.Rotation())
sketch20.addGeometry(Part.LineSegment(App.Vector(139, 147, 0), App.Vector(128, 128, 0)), False)
sketch20.addGeometry(Part.LineSegment(App.Vector(128, 128, 0), App.Vector(105, 128, 0)), False)
sketch20.addGeometry(Part.LineSegment(App.Vector(105, 128, 0), App.Vector(94, 147, 0)), False)
sketch20.addGeometry(Part.LineSegment(App.Vector(94, 147, 0), App.Vector(105, 166, 0)), False)
sketch20.addGeometry(Part.LineSegment(App.Vector(105, 166, 0), App.Vector(128, 166, 0)), False)
sketch20.addGeometry(Part.LineSegment(App.Vector(128, 166, 0), App.Vector(139, 147, 0)), False)
sketch20.addConstraint(Sketcher.Constraint("Coincident", 0, 2, 1, 1))
sketch20.addConstraint(Sketcher.Constraint("Coincident", 1, 2, 2, 1))
sketch20.addConstraint(Sketcher.Constraint("Coincident", 2, 2, 3, 1))
sketch20.addConstraint(Sketcher.Constraint("Coincident", 3, 2, 4, 1))
sketch20.addConstraint(Sketcher.Constraint("Coincident", 4, 2, 5, 1))
sketch20.addConstraint(Sketcher.Constraint("Coincident", 5, 2, 0, 1))
sketch20.addConstraint(Sketcher.Constraint("Horizontal", 1))
sketch20.addConstraint(Sketcher.Constraint("Horizontal", 4))
sketch20.addConstraint(Sketcher.Constraint("Parallel", 0, 3))
sketch20.addConstraint(Sketcher.Constraint("Parallel", 2, 5))
sketch20.addConstraint(Sketcher.Constraint("Horizontal", 2, 2, 5, 2))
sketch20.addConstraint(Sketcher.Constraint("Vertical", 1, 2, 3, 2))
sketch20.addConstraint(Sketcher.Constraint("Vertical", 0, 2, 4, 2))
sketch20.addConstraint(Sketcher.Constraint("Angle", 0, Q("-120 deg")))
sketch20.addConstraint(Sketcher.Constraint("DistanceY", -1, 1, 2, 2, Q("147 mm")))
sketch20.addConstraint(Sketcher.Constraint("DistanceY", 1, 2, 3, 2, Q("39 mm")))
sketch20.addConstraint(Sketcher.Constraint("DistanceX", 1, 2, 1, 1, Q("22.51666 mm")))
sketch20.addConstraint(Sketcher.Constraint("DistanceX", -1, 1, 0, 2, Q("127.75833 mm")))
pad12 = body.newObject("PartDesign::Pad", "Pad011")
pad12.Profile = sketch20
pad12.Length = 12
pad12.Reversed = True

# Sketch on YZ plane
sketch21 = body.newObject("Sketcher::SketchObject", "Sketch020")
sketch21.AttachmentSupport = (doc.getObject("YZ_Plane"), [""])
sketch21.MapMode = "FlatFace"
sketch21.AttachmentOffset = App.Placement(App.Vector(0, 0, -57), App.Rotation())
sketch21.addGeometry(Part.Circle(App.Vector(116, 147, 0), App.Vector(0, 0, 1), 8), False)
sketch21.addConstraint(Sketcher.Constraint("Diameter", 0, Q("16 mm")))
sketch21.addConstraint(Sketcher.Constraint("DistanceY", -1, 1, 0, 3, Q("147 mm")))
sketch21.addConstraint(Sketcher.Constraint("DistanceX", -1, 1, 0, 3, Q("116.5 mm")))
pocket7 = body.newObject("PartDesign::Pocket", "Pocket006")
pocket7.Profile = sketch21
pocket7.Length = 12
pocket7.Reversed = True

doc.recompute()
